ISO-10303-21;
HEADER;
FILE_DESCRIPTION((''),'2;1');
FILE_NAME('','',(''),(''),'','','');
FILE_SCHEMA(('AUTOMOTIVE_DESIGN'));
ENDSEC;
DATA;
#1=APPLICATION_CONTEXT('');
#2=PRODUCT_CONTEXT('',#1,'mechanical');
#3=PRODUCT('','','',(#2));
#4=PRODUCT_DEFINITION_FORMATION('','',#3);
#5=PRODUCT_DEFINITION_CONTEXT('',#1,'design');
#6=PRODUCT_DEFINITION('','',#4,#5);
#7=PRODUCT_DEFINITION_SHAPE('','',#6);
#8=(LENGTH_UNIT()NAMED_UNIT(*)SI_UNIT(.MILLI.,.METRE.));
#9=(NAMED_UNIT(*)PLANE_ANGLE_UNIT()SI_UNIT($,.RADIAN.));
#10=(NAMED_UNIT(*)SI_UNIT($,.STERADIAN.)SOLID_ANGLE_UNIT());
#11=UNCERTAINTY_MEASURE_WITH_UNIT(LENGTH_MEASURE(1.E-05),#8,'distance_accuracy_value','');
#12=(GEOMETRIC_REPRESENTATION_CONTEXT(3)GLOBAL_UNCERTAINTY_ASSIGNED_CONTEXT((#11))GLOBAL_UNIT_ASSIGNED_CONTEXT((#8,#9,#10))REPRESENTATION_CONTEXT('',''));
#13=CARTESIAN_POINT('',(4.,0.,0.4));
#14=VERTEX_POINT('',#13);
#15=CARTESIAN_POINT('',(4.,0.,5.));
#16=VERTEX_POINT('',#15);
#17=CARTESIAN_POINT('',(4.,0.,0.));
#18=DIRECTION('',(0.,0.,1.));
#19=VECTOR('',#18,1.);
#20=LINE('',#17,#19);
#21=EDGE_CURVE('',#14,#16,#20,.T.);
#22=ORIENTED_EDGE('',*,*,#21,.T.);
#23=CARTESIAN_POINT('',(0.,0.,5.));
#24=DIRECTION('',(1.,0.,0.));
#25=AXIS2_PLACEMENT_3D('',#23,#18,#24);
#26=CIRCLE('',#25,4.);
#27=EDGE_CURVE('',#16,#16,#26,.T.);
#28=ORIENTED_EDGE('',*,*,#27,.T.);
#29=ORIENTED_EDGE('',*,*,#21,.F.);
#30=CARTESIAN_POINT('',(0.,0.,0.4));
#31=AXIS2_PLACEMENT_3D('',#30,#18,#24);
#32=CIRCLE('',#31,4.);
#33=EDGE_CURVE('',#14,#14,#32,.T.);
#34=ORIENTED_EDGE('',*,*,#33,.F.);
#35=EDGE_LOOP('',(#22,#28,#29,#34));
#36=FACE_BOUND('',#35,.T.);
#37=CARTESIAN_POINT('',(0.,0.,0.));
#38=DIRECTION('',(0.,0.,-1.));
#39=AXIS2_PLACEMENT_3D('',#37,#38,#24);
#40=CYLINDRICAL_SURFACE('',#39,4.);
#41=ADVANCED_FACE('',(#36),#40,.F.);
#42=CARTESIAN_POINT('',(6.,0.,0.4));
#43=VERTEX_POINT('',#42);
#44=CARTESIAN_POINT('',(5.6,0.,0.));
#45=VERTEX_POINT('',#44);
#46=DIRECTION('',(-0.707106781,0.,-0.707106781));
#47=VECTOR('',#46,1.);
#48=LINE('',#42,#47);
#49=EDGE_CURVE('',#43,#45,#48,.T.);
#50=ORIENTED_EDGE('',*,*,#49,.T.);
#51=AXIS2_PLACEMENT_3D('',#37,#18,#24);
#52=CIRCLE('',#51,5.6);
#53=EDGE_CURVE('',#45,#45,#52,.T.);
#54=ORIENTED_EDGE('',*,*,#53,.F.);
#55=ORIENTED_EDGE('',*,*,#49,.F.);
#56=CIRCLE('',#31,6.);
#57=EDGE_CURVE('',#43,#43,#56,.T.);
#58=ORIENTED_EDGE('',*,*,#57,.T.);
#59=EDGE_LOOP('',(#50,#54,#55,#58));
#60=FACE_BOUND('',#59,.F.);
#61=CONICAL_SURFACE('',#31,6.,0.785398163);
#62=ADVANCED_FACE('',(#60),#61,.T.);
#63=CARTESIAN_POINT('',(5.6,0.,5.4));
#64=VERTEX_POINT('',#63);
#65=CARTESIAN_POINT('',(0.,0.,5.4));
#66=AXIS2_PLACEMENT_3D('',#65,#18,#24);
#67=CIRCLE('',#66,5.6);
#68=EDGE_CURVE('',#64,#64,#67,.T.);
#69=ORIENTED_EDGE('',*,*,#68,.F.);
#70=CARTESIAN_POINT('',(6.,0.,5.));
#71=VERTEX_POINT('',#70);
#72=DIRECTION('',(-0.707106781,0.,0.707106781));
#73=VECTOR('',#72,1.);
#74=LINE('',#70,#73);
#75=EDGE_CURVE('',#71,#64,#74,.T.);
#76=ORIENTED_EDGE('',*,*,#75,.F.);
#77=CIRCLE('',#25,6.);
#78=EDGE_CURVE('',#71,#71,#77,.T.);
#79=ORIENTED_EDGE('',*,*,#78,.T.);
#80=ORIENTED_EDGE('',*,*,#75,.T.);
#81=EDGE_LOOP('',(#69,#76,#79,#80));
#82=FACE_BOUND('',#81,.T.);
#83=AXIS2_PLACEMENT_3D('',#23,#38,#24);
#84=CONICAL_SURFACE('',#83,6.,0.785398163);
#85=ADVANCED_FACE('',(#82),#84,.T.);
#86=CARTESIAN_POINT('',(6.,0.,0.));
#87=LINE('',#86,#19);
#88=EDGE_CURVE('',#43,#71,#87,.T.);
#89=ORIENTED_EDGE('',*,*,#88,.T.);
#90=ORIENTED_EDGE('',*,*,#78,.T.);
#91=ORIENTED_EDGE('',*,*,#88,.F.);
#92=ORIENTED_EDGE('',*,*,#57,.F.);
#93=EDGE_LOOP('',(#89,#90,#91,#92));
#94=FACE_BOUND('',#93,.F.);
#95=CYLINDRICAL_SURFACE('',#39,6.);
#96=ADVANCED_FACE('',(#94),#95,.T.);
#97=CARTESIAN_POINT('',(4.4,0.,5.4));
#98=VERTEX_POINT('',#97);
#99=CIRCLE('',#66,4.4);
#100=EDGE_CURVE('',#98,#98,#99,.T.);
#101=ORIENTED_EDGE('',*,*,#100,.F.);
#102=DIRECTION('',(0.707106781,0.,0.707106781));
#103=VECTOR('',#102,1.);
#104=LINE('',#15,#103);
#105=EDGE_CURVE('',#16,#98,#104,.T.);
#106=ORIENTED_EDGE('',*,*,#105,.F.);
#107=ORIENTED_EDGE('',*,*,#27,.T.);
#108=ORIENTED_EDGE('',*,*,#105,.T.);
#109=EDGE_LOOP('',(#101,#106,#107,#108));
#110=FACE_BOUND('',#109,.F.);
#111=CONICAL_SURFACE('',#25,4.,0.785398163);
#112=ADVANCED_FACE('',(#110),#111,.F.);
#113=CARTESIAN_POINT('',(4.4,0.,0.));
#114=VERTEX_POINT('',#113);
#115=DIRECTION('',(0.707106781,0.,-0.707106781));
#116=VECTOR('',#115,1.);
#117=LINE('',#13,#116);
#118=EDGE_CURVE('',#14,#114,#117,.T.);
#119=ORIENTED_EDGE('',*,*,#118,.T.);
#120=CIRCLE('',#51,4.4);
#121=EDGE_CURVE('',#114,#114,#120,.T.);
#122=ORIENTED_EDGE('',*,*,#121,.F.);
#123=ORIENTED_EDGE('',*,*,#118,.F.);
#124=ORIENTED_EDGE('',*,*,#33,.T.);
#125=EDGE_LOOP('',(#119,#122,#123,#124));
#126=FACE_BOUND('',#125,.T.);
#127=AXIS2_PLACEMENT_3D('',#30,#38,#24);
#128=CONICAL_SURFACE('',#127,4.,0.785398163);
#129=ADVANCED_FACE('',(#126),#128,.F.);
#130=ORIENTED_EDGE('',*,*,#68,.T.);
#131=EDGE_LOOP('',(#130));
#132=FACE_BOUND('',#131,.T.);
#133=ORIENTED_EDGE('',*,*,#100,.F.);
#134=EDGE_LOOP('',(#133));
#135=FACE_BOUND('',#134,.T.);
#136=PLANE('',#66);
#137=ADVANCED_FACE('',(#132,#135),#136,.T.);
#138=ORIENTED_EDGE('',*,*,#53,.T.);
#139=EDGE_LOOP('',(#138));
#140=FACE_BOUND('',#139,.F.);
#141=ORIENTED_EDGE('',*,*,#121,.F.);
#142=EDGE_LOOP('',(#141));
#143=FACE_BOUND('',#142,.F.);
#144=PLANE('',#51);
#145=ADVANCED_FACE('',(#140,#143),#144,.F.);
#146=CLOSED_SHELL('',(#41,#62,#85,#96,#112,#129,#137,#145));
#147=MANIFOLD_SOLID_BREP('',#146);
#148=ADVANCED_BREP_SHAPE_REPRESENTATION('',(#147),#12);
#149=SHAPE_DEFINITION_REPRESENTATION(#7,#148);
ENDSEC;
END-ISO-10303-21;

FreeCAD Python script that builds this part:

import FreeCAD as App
import Part
import Sketcher
from FreeCAD import Vector


def edges_at(feature, points):
    """Names of the edges that pass closest to the given points."""
    edges = feature.Shape.Edges
    near = lambda p: min(range(len(edges)), key=lambda i: edges[i].distToShape(Part.Vertex(*p))[0])
    return sorted({f"Edge{near(p) + 1}" for p in points})

doc = App.newDocument("Part")
body = doc.addObject("PartDesign::Body", "Body")

sketch1 = body.newObject("Sketcher::SketchObject", "Sketch")
sketch1.AttachmentSupport = (doc.getObject("XY_Plane"), [""])
sketch1.MapMode = "FlatFace"
sketch1.addGeometry([
    Part.Circle(Vector(0, 0, 0), Vector(0, 0, 1), 6),
    Part.Circle(Vector(0, 0, 0), Vector(0, 0, 1), 4),
], False)
sketch1.addConstraint([
    Sketcher.Constraint("Coincident", 0, 3, -1, 1),
    Sketcher.Constraint("Coincident", 1, 3, -1, 1),
    Sketcher.Constraint("Diameter", 0, 12.0),
    Sketcher.Constraint("Diameter", 1, 8.0),
])
pad1 = body.newObject("PartDesign::Pad", "Pad")
pad1.Profile = sketch1
pad1.Length = 5.4
doc.recompute()

chamfer = body.newObject("PartDesign::Chamfer", "Chamfer")
chamfer.Base = (pad1, edges_at(pad1, [
    (-6, 0, 5.4),
    (-4, 0, 5.4),
    (-6, 0, 0),
    (-4, 0, 0),
]))
chamfer.Size = 0.4

doc.recompute()
